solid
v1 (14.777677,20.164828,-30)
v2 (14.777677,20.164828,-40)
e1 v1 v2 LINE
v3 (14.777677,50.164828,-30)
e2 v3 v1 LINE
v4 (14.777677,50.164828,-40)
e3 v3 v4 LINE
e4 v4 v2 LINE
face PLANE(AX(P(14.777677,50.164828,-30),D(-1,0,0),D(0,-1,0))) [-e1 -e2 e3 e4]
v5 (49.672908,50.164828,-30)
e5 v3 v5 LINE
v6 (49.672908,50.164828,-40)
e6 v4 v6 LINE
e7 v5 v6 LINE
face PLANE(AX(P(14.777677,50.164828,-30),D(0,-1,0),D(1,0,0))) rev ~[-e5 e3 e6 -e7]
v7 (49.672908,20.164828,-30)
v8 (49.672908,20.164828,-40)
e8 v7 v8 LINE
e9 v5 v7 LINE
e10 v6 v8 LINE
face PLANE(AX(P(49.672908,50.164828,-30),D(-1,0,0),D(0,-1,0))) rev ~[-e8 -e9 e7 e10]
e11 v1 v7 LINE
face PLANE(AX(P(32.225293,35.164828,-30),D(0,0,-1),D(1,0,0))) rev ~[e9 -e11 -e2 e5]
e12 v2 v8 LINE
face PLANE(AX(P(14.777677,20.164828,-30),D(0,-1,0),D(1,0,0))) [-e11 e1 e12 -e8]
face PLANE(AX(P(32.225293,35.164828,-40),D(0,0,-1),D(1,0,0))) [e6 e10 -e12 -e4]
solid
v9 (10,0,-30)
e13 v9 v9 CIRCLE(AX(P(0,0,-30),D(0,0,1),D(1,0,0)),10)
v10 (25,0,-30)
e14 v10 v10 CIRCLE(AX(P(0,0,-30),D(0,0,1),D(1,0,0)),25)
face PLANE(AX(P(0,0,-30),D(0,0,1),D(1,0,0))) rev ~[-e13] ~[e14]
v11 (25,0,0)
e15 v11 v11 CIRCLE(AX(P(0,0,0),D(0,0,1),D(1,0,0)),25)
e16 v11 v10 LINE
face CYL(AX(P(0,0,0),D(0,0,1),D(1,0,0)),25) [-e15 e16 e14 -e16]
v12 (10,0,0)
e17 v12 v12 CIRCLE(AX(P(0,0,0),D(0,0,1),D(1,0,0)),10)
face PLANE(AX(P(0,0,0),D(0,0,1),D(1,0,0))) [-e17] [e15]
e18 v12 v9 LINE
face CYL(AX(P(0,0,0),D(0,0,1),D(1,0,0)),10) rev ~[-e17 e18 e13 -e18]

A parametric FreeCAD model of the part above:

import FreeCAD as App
import Part
import Sketcher


def add_polygon(sketch, points):
    """Adds a closed chain of lines whose ends are joined by coincident constraints."""
    first, n = sketch.GeometryCount, len(points)
    for a, b in zip(points, points[1:] + points[:1]):
        sketch.addGeometry(Part.LineSegment(App.Vector(*a, 0), App.Vector(*b, 0)), False)
    for i in range(n):
        sketch.addConstraint(Sketcher.Constraint("Coincident", first + i, 2, first + (i + 1) % n, 1))

doc = App.newDocument("Part")
params = doc.addObject("Spreadsheet::Sheet", "Params")
for row, (alias, value) in enumerate([
    ("sketch1_diameter", "50 mm"),
    ("sketch1_diameter2", "20 mm"),
    ("pad1_length", "30 mm"),
    ("sketch2_height", "30 mm"),
    ("pad2_length", "10 mm"),
], start=1):
    params.set(f"A{row}", alias)
    params.set(f"B{row}", "=" + value)
    params.setAlias(f"B{row}", alias)

body = doc.addObject("PartDesign::Body", "Body")

# Sketch on XY plane
sketch1 = body.newObject("Sketcher::SketchObject", "Sketch")
sketch1.AttachmentSupport = (doc.getObject("XY_Plane"), [""])
sketch1.MapMode = "FlatFace"
sketch1.addGeometry(Part.Circle(App.Vector(0, 0, 0), App.Vector(0, 0, 1), 25), False)
sketch1.addGeometry(Part.Circle(App.Vector(0, 0, 0), App.Vector(0, 0, 1), 10), False)
sketch1.addConstraint(Sketcher.Constraint("Coincident", 0, 3, -1, 1))
sketch1.addConstraint(Sketcher.Constraint("Coincident", 1, 3, -1, 1))
sketch1.addConstraint(Sketcher.Constraint("Diameter", 0, 50.0))
sketch1.addConstraint(Sketcher.Constraint("Diameter", 1, 20.0))
sketch1.setExpression("Constraints[2]", "Params.sketch1_diameter")
sketch1.setExpression("Constraints[3]", "Params.sketch1_diameter2")
pad1 = body.newObject("PartDesign::Pad", "Pad")
pad1.Profile = sketch1
pad1.setExpression("Length", "Params.pad1_length")
pad1.Reversed = True
body2 = doc.addObject("PartDesign::Body", "Body001")

# Sketch on XY plane
sketch2 = body2.newObject("Sketcher::SketchObject", "Sketch001")
sketch2.AttachmentSupport = (doc.getObject("XY_Plane001"), [""])
sketch2.MapMode = "FlatFace"
sketch2.AttachmentOffset = App.Placement(App.Vector(0, 0, -30), App.Rotation())
add_polygon(sketch2, [(14.777677, 20.164828), (14.777677, 50.164828), (49.672908, 50.164828), (49.672908, 20.164828)])  # lines 0-3
sketch2.addConstraint(Sketcher.Constraint("Vertical", 0))
sketch2.addConstraint(Sketcher.Constraint("Horizontal", 1))
sketch2.addConstraint(Sketcher.Constraint("Vertical", 2))
sketch2.addConstraint(Sketcher.Constraint("Horizontal", 3))
sketch2.addConstraint(Sketcher.Constraint("DistanceY", 0, 1, 0, 2, 30.0))
sketch2.addConstraint(Sketcher.Constraint("DistanceX", 1, 1, 1, 2, 34.895231))
sketch2.addConstraint(Sketcher.Constraint("DistanceX", -1, 1, 1, 2, 49.672908))
sketch2.addConstraint(Sketcher.Constraint("DistanceY", -1, 1, 2, 2, 20.164828))
sketch2.setExpression("Constraints[8]", "Params.sketch2_height")
pad2 = body2.newObject("PartDesign::Pad", "Pad001")
pad2.Profile = sketch2
pad2.setExpression("Length", "Params.pad2_length")
pad2.Reversed = True

doc.recompute()
